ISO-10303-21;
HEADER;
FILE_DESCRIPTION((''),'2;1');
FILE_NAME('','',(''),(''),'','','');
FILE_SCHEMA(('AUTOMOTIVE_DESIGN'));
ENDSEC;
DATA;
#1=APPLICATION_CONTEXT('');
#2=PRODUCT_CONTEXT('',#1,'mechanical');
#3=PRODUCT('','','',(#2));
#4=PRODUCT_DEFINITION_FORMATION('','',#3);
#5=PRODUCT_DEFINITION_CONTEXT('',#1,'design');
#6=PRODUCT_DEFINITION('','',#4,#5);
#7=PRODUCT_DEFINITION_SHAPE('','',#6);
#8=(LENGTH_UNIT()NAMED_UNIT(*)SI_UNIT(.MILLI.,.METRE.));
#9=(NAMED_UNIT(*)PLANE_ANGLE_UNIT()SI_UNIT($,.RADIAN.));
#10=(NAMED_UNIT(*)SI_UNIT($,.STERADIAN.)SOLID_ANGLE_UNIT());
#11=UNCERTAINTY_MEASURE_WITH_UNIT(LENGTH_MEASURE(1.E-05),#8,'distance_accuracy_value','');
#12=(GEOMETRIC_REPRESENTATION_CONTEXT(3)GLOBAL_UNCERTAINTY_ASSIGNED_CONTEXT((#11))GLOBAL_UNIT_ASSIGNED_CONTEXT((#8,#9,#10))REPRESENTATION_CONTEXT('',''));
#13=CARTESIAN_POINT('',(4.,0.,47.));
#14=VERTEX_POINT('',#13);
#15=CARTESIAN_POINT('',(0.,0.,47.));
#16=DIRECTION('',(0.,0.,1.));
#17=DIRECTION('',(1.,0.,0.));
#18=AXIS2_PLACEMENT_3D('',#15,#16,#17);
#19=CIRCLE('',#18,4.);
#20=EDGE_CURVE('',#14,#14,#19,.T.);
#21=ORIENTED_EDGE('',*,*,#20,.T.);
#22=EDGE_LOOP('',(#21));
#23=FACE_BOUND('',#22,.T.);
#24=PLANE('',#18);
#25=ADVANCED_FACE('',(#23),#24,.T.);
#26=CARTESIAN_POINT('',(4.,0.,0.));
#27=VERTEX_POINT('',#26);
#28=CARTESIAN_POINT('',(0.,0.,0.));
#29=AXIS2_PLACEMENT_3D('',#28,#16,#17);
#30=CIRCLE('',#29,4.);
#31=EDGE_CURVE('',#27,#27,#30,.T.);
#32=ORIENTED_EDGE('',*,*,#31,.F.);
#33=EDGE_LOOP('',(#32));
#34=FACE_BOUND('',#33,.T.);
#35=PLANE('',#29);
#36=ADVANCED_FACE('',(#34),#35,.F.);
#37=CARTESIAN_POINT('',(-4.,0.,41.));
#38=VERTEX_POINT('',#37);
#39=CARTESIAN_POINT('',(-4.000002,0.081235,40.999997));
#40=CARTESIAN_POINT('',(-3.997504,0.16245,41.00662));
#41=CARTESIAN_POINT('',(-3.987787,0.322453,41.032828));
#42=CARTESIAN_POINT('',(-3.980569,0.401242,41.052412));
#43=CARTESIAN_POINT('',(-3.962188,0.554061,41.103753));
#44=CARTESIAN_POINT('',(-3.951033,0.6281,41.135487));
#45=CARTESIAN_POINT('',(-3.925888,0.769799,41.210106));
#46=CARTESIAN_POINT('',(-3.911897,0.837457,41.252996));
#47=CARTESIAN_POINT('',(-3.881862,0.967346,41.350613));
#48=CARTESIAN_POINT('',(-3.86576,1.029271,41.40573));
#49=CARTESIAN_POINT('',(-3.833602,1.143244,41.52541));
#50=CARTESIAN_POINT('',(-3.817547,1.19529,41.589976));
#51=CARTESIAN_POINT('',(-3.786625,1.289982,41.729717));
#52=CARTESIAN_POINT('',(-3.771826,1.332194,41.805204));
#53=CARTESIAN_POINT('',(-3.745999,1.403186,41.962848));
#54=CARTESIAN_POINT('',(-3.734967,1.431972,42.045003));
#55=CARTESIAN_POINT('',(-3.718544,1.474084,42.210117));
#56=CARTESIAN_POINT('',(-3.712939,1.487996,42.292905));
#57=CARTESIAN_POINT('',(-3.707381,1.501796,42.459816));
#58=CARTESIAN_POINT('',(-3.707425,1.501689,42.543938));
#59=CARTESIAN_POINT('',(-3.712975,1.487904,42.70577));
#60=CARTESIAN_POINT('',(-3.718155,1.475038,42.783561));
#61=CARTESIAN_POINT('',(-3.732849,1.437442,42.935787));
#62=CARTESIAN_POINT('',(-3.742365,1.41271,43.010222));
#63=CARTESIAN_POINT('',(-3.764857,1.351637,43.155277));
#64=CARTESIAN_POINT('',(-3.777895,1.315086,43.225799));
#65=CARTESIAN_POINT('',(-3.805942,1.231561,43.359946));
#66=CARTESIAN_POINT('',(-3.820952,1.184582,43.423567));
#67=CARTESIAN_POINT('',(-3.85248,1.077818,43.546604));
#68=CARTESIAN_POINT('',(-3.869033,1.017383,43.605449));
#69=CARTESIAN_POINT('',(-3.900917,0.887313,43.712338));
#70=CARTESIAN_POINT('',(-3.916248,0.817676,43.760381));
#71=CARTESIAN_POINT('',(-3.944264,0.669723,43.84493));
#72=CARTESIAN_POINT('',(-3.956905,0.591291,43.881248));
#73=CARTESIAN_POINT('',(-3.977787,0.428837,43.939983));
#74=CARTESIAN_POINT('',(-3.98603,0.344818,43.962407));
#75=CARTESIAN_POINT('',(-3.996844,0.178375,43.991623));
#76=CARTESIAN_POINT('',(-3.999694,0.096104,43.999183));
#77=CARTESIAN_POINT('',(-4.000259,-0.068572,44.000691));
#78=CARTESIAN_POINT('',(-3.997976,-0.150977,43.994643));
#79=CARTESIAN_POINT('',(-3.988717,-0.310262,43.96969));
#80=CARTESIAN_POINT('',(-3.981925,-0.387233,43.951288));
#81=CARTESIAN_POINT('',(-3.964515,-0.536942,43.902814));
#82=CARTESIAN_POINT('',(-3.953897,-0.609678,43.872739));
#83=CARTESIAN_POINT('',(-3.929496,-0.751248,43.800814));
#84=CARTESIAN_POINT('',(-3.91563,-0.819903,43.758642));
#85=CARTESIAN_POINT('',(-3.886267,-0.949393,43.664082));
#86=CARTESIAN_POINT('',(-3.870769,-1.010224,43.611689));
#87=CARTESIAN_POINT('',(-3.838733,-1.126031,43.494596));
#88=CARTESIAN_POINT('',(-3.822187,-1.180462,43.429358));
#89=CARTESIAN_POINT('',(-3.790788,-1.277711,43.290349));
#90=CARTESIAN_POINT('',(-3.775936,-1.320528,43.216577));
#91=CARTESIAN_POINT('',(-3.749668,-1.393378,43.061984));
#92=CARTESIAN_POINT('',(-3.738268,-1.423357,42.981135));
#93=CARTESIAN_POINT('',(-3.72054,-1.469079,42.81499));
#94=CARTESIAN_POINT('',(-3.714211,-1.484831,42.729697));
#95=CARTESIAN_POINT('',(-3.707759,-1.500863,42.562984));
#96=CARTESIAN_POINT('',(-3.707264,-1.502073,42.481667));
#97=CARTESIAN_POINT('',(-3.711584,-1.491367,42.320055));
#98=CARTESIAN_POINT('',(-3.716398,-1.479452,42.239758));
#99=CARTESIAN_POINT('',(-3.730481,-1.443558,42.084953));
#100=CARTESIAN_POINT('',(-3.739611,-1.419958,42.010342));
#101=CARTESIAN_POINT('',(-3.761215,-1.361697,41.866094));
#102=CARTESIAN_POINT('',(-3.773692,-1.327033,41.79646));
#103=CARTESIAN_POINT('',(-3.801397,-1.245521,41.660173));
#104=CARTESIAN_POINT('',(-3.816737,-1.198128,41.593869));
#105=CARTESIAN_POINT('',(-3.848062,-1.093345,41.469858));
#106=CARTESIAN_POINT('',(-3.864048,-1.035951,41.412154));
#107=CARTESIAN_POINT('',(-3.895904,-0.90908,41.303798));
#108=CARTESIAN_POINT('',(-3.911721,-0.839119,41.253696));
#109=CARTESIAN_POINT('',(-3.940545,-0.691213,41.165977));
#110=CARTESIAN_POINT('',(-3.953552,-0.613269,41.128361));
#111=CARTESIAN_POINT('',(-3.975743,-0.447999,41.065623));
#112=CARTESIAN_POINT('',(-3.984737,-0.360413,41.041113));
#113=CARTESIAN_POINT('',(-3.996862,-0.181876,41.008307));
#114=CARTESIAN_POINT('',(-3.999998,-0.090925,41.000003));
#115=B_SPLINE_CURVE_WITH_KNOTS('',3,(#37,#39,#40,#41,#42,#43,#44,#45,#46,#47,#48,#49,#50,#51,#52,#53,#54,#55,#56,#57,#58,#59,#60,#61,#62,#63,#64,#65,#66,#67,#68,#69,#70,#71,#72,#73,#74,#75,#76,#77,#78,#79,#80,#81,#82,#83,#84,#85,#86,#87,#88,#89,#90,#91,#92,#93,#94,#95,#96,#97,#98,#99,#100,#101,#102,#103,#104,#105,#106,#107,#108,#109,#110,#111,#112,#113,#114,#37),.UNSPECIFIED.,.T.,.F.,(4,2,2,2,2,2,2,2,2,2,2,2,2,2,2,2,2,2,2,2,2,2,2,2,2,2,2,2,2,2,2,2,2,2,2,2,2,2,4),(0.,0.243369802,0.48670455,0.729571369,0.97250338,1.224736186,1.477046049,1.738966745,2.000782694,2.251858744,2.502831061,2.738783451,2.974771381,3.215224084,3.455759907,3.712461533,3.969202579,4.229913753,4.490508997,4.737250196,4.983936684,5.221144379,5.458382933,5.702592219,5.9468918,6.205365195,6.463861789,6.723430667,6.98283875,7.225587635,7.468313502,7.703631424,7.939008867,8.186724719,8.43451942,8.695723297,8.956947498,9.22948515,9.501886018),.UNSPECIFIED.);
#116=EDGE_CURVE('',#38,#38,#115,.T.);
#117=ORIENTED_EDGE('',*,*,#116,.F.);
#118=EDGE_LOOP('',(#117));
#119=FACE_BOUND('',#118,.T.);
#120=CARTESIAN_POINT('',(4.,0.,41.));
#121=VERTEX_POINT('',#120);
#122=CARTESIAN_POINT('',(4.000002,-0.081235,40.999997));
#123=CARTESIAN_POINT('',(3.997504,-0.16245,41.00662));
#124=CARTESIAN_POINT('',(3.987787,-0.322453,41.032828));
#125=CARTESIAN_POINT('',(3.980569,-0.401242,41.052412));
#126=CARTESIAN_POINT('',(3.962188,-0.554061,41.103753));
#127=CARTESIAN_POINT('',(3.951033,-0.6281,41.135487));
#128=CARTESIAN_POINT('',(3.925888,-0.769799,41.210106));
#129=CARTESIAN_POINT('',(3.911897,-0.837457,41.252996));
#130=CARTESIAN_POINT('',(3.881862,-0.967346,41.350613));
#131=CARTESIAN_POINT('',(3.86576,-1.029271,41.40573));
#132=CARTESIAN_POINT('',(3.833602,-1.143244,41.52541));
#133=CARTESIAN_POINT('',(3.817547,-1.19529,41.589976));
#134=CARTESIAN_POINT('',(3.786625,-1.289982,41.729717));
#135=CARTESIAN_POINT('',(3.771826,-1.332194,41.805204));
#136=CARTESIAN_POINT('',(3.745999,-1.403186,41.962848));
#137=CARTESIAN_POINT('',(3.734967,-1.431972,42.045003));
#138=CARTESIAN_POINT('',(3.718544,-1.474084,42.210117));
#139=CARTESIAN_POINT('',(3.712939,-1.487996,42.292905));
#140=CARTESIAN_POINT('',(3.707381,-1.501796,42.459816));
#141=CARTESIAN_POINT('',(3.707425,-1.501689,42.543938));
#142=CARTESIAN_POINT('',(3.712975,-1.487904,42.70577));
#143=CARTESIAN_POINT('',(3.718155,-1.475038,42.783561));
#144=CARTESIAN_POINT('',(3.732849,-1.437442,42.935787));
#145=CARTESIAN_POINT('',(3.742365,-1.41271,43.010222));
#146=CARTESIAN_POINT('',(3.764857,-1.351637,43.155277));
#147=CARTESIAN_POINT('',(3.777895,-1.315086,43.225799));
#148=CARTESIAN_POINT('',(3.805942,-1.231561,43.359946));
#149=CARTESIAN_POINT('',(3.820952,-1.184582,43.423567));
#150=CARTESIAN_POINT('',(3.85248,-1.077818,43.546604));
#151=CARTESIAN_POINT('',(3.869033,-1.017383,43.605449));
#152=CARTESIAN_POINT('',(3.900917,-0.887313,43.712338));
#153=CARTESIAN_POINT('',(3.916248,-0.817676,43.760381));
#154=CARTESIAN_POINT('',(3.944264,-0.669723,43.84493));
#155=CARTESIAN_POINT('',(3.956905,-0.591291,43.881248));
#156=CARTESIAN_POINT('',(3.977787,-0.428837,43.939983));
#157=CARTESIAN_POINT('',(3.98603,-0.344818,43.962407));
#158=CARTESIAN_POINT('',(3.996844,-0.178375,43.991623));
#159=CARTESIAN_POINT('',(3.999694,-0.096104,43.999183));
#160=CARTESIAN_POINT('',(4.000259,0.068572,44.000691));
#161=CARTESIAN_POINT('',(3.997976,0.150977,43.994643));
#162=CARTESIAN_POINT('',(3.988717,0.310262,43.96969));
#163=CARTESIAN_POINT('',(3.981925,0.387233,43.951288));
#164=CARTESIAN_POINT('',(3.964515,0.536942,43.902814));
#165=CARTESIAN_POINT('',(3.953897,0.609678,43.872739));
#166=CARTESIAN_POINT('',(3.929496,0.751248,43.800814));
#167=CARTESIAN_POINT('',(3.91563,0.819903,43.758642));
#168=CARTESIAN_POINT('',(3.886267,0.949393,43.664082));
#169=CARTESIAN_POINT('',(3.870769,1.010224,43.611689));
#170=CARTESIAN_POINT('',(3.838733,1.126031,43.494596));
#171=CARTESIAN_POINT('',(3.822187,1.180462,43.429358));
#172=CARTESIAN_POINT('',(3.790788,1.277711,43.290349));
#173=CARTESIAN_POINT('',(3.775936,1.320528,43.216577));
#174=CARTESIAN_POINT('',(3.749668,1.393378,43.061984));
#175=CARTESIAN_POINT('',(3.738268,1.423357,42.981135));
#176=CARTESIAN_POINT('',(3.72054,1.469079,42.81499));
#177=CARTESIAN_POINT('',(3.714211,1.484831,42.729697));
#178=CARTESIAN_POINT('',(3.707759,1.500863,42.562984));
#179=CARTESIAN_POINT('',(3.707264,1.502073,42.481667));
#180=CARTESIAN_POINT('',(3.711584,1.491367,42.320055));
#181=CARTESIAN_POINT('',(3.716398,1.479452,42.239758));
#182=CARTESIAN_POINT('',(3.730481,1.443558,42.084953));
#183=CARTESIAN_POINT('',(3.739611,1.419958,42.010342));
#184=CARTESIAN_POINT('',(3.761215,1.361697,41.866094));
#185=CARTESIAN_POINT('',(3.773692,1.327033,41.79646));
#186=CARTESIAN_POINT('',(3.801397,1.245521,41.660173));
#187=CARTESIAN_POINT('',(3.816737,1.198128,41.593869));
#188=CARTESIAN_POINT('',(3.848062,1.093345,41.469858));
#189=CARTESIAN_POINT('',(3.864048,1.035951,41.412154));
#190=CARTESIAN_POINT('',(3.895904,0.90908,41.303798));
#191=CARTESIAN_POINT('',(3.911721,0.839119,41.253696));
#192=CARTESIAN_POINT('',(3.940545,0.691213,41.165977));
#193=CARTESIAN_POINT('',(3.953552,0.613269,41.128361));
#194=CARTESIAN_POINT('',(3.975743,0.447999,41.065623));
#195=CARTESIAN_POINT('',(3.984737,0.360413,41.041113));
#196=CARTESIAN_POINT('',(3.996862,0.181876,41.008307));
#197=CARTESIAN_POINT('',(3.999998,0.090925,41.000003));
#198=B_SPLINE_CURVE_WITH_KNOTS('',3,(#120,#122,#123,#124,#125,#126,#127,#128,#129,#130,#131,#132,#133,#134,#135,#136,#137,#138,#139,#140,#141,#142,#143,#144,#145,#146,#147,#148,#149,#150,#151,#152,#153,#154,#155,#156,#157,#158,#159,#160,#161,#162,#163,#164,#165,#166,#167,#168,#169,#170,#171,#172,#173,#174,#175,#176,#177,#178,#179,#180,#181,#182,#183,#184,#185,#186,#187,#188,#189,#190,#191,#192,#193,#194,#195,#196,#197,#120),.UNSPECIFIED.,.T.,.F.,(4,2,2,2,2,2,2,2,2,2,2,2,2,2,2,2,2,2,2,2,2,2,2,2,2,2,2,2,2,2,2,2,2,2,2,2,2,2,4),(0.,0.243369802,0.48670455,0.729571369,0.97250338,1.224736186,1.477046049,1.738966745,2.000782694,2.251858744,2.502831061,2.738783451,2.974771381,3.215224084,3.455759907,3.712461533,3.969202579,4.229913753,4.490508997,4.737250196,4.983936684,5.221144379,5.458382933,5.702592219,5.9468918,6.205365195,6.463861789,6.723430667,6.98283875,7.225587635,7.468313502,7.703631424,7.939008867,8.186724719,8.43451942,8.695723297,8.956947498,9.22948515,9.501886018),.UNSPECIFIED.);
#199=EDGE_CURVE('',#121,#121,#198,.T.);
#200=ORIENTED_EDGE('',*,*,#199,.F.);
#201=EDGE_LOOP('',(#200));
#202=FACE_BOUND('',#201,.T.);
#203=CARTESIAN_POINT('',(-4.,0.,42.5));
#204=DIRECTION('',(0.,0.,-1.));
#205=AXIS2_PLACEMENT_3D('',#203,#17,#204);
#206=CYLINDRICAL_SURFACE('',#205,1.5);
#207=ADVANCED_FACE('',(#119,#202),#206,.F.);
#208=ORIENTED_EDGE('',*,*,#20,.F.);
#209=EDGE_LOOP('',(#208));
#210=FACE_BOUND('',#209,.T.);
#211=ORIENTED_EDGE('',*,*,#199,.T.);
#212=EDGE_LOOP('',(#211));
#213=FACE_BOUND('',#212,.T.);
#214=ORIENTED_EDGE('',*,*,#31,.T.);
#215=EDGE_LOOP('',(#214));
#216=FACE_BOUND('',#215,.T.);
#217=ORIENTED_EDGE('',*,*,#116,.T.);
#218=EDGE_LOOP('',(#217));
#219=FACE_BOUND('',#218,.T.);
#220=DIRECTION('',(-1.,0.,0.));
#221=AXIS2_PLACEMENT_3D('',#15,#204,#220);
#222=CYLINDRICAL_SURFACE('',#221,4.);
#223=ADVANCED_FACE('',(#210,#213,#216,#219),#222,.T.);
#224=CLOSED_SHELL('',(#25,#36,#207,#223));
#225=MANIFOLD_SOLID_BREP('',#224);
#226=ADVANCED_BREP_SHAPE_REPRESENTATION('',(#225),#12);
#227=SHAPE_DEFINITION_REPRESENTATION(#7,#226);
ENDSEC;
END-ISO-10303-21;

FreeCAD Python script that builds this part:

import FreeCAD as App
import Part
import Sketcher
from FreeCAD import Vector
Q = App.Units.Quantity

doc = App.newDocument("Part")
body = doc.addObject("PartDesign::Body", "Body")

# Sketch on XY plane
sketch1 = doc.addObject("Sketcher::SketchObject", "Sketch")
body.addObject(sketch1)
sketch1.AttachmentSupport = (doc.XY_Plane, [""])
sketch1.MapMode = "FlatFace"
sketch1.addGeometry(Part.Circle(Vector(0, 0, 0), Vector(0, 0, 1), 4), False)
sketch1.addConstraint([
    Sketcher.Constraint("Coincident", 0, 3, -1, 1),
    Sketcher.Constraint("Diameter", 0, Q("8 mm")),
])
pad1 = doc.addObject("PartDesign::Pad", "Pad")
body.addObject(pad1)
pad1.Profile = sketch1
pad1.Length = 47

# Sketch on YZ plane
sketch2 = doc.addObject("Sketcher::SketchObject", "Sketch001")
body.addObject(sketch2)
sketch2.AttachmentSupport = (doc.YZ_Plane, [""])
sketch2.MapMode = "FlatFace"
sketch2.AttachmentOffset = App.Placement(Vector(0, 0, 4), App.Rotation())
sketch2.addGeometry(Part.Circle(Vector(0, 42.5, 0), Vector(0, 0, 1), 1.5), False)
sketch2.addConstraint([
    Sketcher.Constraint("PointOnObject", 0, 3, -2),
    Sketcher.Constraint("Diameter", 0, Q("3 mm")),
    Sketcher.Constraint("DistanceY", -1, 1, 0, 3, Q("42.5 mm")),
])
pocket1 = doc.addObject("PartDesign::Pocket", "Pocket")
body.addObject(pocket1)
pocket1.Profile = sketch2
pocket1.Type = "ThroughAll"

doc.recompute()
